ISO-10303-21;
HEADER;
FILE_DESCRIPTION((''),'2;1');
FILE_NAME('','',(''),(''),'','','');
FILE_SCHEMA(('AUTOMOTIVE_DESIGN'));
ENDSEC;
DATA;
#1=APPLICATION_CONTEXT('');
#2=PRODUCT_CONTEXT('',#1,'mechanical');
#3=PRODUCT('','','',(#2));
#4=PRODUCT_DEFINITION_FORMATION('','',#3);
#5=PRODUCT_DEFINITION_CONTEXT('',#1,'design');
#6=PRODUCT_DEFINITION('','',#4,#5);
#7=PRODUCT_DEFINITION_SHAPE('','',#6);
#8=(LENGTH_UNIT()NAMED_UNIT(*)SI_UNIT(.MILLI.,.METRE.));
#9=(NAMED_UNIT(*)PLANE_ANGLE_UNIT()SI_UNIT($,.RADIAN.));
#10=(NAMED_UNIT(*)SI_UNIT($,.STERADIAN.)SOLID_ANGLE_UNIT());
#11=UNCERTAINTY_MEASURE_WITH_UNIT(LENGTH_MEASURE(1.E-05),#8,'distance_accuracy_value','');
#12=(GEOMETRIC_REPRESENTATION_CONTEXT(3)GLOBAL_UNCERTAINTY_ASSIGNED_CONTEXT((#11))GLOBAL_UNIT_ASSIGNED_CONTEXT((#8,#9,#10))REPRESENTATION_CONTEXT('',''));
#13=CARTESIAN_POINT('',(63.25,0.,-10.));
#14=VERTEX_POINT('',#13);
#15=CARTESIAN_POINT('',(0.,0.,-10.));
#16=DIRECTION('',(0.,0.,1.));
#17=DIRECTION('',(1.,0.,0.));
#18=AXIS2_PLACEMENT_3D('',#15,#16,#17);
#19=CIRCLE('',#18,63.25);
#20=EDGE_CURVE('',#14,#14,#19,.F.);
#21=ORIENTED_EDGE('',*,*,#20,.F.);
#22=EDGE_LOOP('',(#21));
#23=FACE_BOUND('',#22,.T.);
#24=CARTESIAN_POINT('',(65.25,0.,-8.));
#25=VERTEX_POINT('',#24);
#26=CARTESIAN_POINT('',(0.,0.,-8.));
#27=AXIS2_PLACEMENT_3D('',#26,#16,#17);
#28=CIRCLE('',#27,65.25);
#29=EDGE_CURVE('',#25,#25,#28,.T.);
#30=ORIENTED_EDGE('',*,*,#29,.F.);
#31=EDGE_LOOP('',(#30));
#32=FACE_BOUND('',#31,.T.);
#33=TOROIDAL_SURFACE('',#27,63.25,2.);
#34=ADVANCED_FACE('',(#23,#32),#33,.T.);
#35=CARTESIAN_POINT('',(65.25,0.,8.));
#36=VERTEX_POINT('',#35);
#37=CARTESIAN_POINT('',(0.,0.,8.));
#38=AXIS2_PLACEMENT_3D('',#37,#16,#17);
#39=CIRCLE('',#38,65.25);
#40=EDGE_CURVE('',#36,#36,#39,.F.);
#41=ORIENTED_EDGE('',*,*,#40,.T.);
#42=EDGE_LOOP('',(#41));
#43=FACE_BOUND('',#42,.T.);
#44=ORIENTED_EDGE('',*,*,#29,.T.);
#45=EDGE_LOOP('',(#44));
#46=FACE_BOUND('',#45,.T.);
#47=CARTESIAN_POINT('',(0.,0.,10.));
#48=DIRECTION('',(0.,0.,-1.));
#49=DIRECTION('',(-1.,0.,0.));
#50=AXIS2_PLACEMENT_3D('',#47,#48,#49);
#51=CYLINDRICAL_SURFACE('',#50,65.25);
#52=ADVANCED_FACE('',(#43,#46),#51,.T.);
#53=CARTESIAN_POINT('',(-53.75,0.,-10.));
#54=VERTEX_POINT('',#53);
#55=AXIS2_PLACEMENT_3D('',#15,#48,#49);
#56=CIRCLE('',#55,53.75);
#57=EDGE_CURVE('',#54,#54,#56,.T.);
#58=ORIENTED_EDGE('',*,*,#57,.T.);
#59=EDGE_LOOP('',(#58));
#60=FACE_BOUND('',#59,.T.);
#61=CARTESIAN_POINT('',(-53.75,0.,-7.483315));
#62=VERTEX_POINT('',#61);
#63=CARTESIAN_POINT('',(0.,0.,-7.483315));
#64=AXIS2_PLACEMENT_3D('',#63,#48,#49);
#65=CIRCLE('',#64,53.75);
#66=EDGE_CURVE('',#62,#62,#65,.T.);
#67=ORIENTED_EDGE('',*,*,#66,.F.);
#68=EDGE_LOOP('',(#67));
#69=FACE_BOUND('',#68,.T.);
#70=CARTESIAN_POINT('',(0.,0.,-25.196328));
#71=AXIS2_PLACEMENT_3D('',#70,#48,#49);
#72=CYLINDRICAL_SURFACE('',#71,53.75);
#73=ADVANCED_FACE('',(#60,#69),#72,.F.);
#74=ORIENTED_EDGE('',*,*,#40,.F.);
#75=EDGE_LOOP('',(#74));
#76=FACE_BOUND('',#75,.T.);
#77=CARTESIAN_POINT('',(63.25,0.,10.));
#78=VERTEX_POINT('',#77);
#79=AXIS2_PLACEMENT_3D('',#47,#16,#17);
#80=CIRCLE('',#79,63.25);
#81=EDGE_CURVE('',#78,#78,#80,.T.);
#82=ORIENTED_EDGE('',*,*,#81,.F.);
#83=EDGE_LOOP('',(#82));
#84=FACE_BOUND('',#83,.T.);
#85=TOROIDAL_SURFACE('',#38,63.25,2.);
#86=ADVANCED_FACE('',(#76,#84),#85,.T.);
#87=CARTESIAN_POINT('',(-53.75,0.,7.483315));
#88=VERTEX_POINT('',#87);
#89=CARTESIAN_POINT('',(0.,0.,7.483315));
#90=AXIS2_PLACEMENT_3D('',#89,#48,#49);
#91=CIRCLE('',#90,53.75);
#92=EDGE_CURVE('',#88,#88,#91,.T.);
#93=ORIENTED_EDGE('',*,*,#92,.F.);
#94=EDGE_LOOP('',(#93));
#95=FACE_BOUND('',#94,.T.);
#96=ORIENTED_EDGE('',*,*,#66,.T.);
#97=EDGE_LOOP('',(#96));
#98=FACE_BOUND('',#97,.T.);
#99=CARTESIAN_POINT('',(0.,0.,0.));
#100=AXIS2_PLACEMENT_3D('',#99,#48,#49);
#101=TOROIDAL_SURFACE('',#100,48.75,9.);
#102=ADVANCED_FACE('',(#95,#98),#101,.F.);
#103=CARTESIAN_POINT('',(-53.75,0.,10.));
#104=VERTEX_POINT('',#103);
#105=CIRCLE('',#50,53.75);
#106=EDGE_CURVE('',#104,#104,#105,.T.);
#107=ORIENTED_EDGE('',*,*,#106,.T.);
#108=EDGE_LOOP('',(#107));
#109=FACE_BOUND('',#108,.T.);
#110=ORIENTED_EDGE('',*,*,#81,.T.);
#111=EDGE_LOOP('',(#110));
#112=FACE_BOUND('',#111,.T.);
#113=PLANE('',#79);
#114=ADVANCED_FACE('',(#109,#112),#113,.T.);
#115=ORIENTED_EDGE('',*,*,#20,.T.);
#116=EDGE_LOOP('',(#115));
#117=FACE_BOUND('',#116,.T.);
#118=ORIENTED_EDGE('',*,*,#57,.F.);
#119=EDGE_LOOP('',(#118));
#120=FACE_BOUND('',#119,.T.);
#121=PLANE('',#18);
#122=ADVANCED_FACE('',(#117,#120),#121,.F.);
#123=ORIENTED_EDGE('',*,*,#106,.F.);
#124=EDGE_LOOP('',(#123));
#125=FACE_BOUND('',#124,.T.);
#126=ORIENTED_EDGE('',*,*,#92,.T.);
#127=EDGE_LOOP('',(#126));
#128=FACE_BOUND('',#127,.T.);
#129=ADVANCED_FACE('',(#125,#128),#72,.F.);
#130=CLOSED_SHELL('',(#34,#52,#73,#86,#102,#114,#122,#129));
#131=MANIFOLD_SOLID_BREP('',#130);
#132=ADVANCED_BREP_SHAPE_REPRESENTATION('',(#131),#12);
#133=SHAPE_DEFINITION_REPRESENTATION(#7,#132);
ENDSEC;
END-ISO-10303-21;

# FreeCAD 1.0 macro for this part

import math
import FreeCAD as App
import Part
import Sketcher
from FreeCAD import Vector
Q = App.Units.Quantity


def edges_at(feature, points):
    """Names of the edges that pass closest to the given points."""
    edges = feature.Shape.Edges
    near = lambda p: min(range(len(edges)), key=lambda i: edges[i].distToShape(Part.Vertex(*p))[0])
    return sorted({f"Edge{near(p) + 1}" for p in points})

doc = App.newDocument("Part")
params = doc.addObject("Spreadsheet::Sheet", "Params")
for row, (alias, value) in enumerate([
    ("sketch1_diameter", "130.5 mm"),
    ("sketch1_diameter2", "100.5 mm"),
    ("pad1_length", "20 mm"),
    ("sketch2_radius", "9 mm"),
    ("sketch2_height", "20 mm"),
    ("groove_angle", "360 deg"),
    ("fillet_radius", "2 mm"),
], start=1):
    params.set(f"A{row}", alias)
    params.set(f"B{row}", "=" + value)
    params.setAlias(f"B{row}", alias)

body = doc.addObject("PartDesign::Body", "Body")

# Sketch on XY plane
sketch1 = body.newObject("Sketcher::SketchObject", "Sketch")
sketch1.AttachmentSupport = (doc.getObject("XY_Plane"), [""])
sketch1.MapMode = "FlatFace"
sketch1.addGeometry(Part.Circle(Vector(0, 0, 0), Vector(0, 0, 1), 65), False)
sketch1.addGeometry(Part.Circle(Vector(0, 0, 0), Vector(0, 0, 1), 50), False)
sketch1.addConstraint(Sketcher.Constraint("Coincident", 0, 3, -1, 1))
sketch1.addConstraint(Sketcher.Constraint("Coincident", 1, 3, -1, 1))
sketch1.addConstraint(Sketcher.Constraint("Diameter", 0, Q("130.5 mm")))
sketch1.addConstraint(Sketcher.Constraint("Diameter", 1, Q("100.5 mm")))
sketch1.setExpression("Constraints[2]", "Params.sketch1_diameter")
sketch1.setExpression("Constraints[3]", "Params.sketch1_diameter2")
pad1 = body.newObject("PartDesign::Pad", "Pad")
pad1.Profile = sketch1
pad1.setExpression("Length", "Params.pad1_length")
pad1.Midplane = True

# Sketch on XZ plane
sketch2 = body.newObject("Sketcher::SketchObject", "Sketch001")
sketch2.AttachmentSupport = (doc.getObject("XZ_Plane"), [""])
sketch2.MapMode = "FlatFace"
sketch2.addGeometry(Part.LineSegment(Vector(53.8, -7.5, 0), Vector(53.8, -10, 0)), False)
sketch2.addGeometry(Part.LineSegment(Vector(53.8, -10, 0), Vector(42.3, -10, 0)), False)
sketch2.addGeometry(Part.LineSegment(Vector(42.3, -10, 0), Vector(42.3, 10, 0)), False)
sketch2.addGeometry(Part.LineSegment(Vector(42.3, 10, 0), Vector(53.8, 10, 0)), False)
sketch2.addGeometry(Part.LineSegment(Vector(53.8, 10, 0), Vector(53.8, 7.5, 0)), False)
sketch2.addGeometry(Part.ArcOfCircle(Part.Circle(Vector(48.7, 0, 0), Vector(0, 0, 1), 9), math.radians(-56), math.radians(56)), False)
sketch2.addConstraint(Sketcher.Constraint("Coincident", 0, 2, 1, 1))
sketch2.addConstraint(Sketcher.Constraint("Coincident", 1, 2, 2, 1))
sketch2.addConstraint(Sketcher.Constraint("Coincident", 2, 2, 3, 1))
sketch2.addConstraint(Sketcher.Constraint("Coincident", 3, 2, 4, 1))
sketch2.addConstraint(Sketcher.Constraint("Coincident", 4, 2, 5, 2))
sketch2.addConstraint(Sketcher.Constraint("Coincident", 5, 1, 0, 1))
sketch2.addConstraint(Sketcher.Constraint("Vertical", 0))
sketch2.addConstraint(Sketcher.Constraint("Horizontal", 1))
sketch2.addConstraint(Sketcher.Constraint("Vertical", 2))
sketch2.addConstraint(Sketcher.Constraint("Horizontal", 3))
sketch2.addConstraint(Sketcher.Constraint("Vertical", 4))
sketch2.addConstraint(Sketcher.Constraint("Symmetric", 0, 2, 3, 2, -1))
sketch2.addConstraint(Sketcher.Constraint("PointOnObject", 5, 3, -1))
sketch2.addConstraint(Sketcher.Constraint("Radius", 5, Q("9 mm")))
sketch2.addConstraint(Sketcher.Constraint("DistanceY", 2, 1, 2, 2, Q("20 mm")))
sketch2.addConstraint(Sketcher.Constraint("DistanceX", 5, 3, 0, 2, Q("5 mm")))
sketch2.addConstraint(Sketcher.Constraint("DistanceX", -1, 1, 5, 3, Q("48.75 mm")))
sketch2.addConstraint(Sketcher.Constraint("DistanceX", 1, 2, 1, 1, Q("11.456299 mm")))
sketch2.setExpression("Constraints[13]", "Params.sketch2_radius")
sketch2.setExpression("Constraints[14]", "Params.sketch2_height")
groove = body.newObject("PartDesign::Groove", "Groove")
groove.Profile = sketch2
groove.ReferenceAxis = (sketch2, ["V_Axis"])
groove.setExpression("Angle", "Params.groove_angle")
doc.recompute()

fillet = body.newObject("PartDesign::Fillet", "Fillet")
fillet.Base = (groove, edges_at(groove, [(-65.25, 0, -10), (-65.25, 0, 10)]))
fillet.setExpression("Radius", "Params.fillet_radius")

doc.recompute()
